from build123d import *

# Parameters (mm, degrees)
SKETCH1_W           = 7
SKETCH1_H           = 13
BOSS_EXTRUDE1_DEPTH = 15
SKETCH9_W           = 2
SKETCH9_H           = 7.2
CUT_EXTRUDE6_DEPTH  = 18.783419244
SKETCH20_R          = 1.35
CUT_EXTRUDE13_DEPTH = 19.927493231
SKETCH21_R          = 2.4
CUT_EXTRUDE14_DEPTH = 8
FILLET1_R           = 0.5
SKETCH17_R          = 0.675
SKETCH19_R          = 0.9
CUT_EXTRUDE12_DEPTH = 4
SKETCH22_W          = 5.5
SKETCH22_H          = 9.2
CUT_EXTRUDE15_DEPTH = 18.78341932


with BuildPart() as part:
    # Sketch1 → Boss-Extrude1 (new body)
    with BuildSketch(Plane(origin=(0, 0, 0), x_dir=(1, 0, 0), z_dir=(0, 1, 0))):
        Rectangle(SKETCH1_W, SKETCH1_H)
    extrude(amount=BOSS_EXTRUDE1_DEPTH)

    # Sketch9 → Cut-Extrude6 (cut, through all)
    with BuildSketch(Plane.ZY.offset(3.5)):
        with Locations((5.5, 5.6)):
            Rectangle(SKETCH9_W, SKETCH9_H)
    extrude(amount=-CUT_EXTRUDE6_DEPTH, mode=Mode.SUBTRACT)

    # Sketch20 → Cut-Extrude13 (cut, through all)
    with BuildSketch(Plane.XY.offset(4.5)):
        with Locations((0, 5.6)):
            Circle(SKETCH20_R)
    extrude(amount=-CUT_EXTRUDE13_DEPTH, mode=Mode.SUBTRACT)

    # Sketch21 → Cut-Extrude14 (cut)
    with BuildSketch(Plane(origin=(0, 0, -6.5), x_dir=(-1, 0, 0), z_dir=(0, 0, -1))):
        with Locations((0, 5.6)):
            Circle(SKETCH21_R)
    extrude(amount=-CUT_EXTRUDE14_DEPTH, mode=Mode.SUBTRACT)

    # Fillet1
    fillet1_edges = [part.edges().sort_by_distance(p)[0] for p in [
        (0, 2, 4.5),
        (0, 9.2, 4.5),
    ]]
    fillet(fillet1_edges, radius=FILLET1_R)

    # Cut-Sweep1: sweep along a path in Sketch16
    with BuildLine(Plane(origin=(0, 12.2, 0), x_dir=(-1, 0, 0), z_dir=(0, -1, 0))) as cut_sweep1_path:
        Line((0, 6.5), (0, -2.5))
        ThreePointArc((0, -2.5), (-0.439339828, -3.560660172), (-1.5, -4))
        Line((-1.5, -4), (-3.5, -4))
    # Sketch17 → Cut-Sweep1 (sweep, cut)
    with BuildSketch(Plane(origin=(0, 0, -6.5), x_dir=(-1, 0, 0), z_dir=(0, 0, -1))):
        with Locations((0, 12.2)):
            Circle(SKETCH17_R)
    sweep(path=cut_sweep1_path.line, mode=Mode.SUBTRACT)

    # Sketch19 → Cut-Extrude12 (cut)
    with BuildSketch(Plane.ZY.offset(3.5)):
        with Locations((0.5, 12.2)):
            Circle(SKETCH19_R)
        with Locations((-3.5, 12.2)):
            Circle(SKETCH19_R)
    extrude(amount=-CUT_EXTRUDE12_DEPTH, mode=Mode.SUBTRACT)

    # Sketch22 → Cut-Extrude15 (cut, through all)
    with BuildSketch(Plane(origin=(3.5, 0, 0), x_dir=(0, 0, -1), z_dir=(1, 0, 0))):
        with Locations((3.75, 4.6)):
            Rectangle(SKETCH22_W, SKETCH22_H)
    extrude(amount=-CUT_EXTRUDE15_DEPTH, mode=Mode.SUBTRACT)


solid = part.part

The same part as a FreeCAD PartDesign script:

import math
import FreeCAD as App
import Part
import Sketcher


def edges_at(feature, points):
    """Names of the edges that pass closest to the given points."""
    edges = feature.Shape.Edges
    near = lambda p: min(range(len(edges)), key=lambda i: edges[i].distToShape(Part.Vertex(*p))[0])
    return sorted({f"Edge{near(p) + 1}" for p in points})

doc = App.newDocument("Part")
body = doc.addObject("PartDesign::Body", "Body")

# Sketch on XZ plane
sketch1 = doc.addObject("Sketcher::SketchObject", "Sketch")
body.addObject(sketch1)
sketch1.AttachmentSupport = (doc.XZ_Plane, [""])
sketch1.MapMode = "FlatFace"
sketch1.addGeometry(Part.LineSegment(App.Vector(-4, -6, 0), App.Vector(-4, 6, 0)), False)
sketch1.addGeometry(Part.LineSegment(App.Vector(-4, 6, 0), App.Vector(4, 6, 0)), False)
sketch1.addGeometry(Part.LineSegment(App.Vector(4, 6, 0), App.Vector(4, -6, 0)), False)
sketch1.addGeometry(Part.LineSegment(App.Vector(4, -6, 0), App.Vector(-4, -6, 0)), False)
sketch1.addConstraint(Sketcher.Constraint("Coincident", 0, 2, 1, 1))
sketch1.addConstraint(Sketcher.Constraint("Coincident", 1, 2, 2, 1))
sketch1.addConstraint(Sketcher.Constraint("Coincident", 2, 2, 3, 1))
sketch1.addConstraint(Sketcher.Constraint("Coincident", 3, 2, 0, 1))
sketch1.addConstraint(Sketcher.Constraint("Vertical", 0))
sketch1.addConstraint(Sketcher.Constraint("Horizontal", 1))
sketch1.addConstraint(Sketcher.Constraint("Vertical", 2))
sketch1.addConstraint(Sketcher.Constraint("Horizontal", 3))
sketch1.addConstraint(Sketcher.Constraint("Symmetric", 0, 2, 2, 2, -1, 1))
sketch1.addConstraint(Sketcher.Constraint("DistanceX", 1, 1, 1, 2, 7.0))
sketch1.addConstraint(Sketcher.Constraint("DistanceY", 0, 1, 0, 2, 13.0))
pad1 = doc.addObject("PartDesign::Pad", "Pad")
body.addObject(pad1)
pad1.Profile = sketch1
pad1.Length = 15
pad1.Reversed = True

# Sketch on YZ plane
sketch2 = doc.addObject("Sketcher::SketchObject", "Sketch001")
body.addObject(sketch2)
sketch2.AttachmentSupport = (doc.YZ_Plane, [""])
sketch2.MapMode = "FlatFace"
sketch2.AttachmentOffset = App.Placement(App.Vector(0, 0, -3.5), App.Rotation())
sketch2.addGeometry(Part.LineSegment(App.Vector(9.2, 4.5, 0), App.Vector(2, 4.5, 0)), False)
sketch2.addGeometry(Part.LineSegment(App.Vector(2, 4.5, 0), App.Vector(2, 6.5, 0)), False)
sketch2.addGeometry(Part.LineSegment(App.Vector(2, 6.5, 0), App.Vector(9.2, 6.5, 0)), False)
sketch2.addGeometry(Part.LineSegment(App.Vector(9.2, 6.5, 0), App.Vector(9.2, 4.5, 0)), False)
sketch2.addConstraint(Sketcher.Constraint("Coincident", 0, 2, 1, 1))
sketch2.addConstraint(Sketcher.Constraint("Coincident", 1, 2, 2, 1))
sketch2.addConstraint(Sketcher.Constraint("Coincident", 2, 2, 3, 1))
sketch2.addConstraint(Sketcher.Constraint("Coincident", 3, 2, 0, 1))
sketch2.addConstraint(Sketcher.Constraint("Horizontal", 0))
sketch2.addConstraint(Sketcher.Constraint("Vertical", 1))
sketch2.addConstraint(Sketcher.Constraint("Horizontal", 2))
sketch2.addConstraint(Sketcher.Constraint("Vertical", 3))
sketch2.addConstraint(Sketcher.Constraint("DistanceY", 1, 1, 1, 2, 2.0))
sketch2.addConstraint(Sketcher.Constraint("DistanceX", 0, 2, 0, 1, 7.2))
sketch2.addConstraint(Sketcher.Constraint("DistanceX", -1, 1, 0, 2, 2.0))
sketch2.addConstraint(Sketcher.Constraint("DistanceY", -1, 1, 0, 2, 4.5))
pocket1 = doc.addObject("PartDesign::Pocket", "Pocket")
body.addObject(pocket1)
pocket1.Profile = sketch2
pocket1.Type = "ThroughAll"
pocket1.Reversed = True

# Sketch on XY plane
sketch3 = doc.addObject("Sketcher::SketchObject", "Sketch002")
body.addObject(sketch3)
sketch3.AttachmentSupport = (doc.XY_Plane, [""])
sketch3.MapMode = "FlatFace"
sketch3.AttachmentOffset = App.Placement(App.Vector(0, 0, 4.5), App.Rotation())
sketch3.addGeometry(Part.Circle(App.Vector(0, 5.6, 0), App.Vector(0, 0, 1), 1.4), False)
sketch3.addConstraint(Sketcher.Constraint("PointOnObject", 0, 3, -2))
sketch3.addConstraint(Sketcher.Constraint("Diameter", 0, 2.7))
sketch3.addConstraint(Sketcher.Constraint("DistanceY", -1, 1, 0, 3, 5.6))
pocket2 = doc.addObject("PartDesign::Pocket", "Pocket001")
body.addObject(pocket2)
pocket2.Profile = sketch3
pocket2.Type = "ThroughAll"

# Sketch on XY plane
sketch4 = doc.addObject("Sketcher::SketchObject", "Sketch003")
body.addObject(sketch4)
sketch4.AttachmentSupport = (doc.XY_Plane, [""])
sketch4.MapMode = "FlatFace"
sketch4.AttachmentOffset = App.Placement(App.Vector(0, 0, -6.5), App.Rotation())
sketch4.addGeometry(Part.Circle(App.Vector(0, 5.6, 0), App.Vector(0, 0, 1), 2.4), False)
sketch4.addConstraint(Sketcher.Constraint("PointOnObject", 0, 3, -2))
sketch4.addConstraint(Sketcher.Constraint("Diameter", 0, 4.8))
sketch4.addConstraint(Sketcher.Constraint("DistanceY", -1, 1, 0, 3, 5.6))
pocket3 = doc.addObject("PartDesign::Pocket", "Pocket002")
body.addObject(pocket3)
pocket3.Profile = sketch4
pocket3.Length = 8
pocket3.Reversed = True
doc.recompute()

fillet = doc.addObject("PartDesign::Fillet", "Fillet")
body.addObject(fillet)
fillet.Base = (pocket3, edges_at(pocket3, [(0, 2, 4.5), (0, 9.2, 4.5)]))
fillet.Radius = 0.5

# Sketch on XY plane
sketch5 = doc.addObject("Sketcher::SketchObject", "Sketch004")
body.addObject(sketch5)
sketch5.AttachmentSupport = (doc.XY_Plane, [""])
sketch5.MapMode = "FlatFace"
sketch5.AttachmentOffset = App.Placement(App.Vector(0, 0, -6.5), App.Rotation())
sketch5.addGeometry(Part.Circle(App.Vector(0, 12.2, 0), App.Vector(0, 0, 1), 0.7), False)
sketch5.addConstraint(Sketcher.Constraint("PointOnObject", 0, 3, -2))
sketch5.addConstraint(Sketcher.Constraint("Diameter", 0, 1.35))
sketch5.addConstraint(Sketcher.Constraint("DistanceY", -1, 1, 0, 3, 12.2))

# Sketch on XZ plane
sketch6 = doc.addObject("Sketcher::SketchObject", "Sketch005")
body.addObject(sketch6)
sketch6.AttachmentSupport = (doc.XZ_Plane, [""])
sketch6.MapMode = "FlatFace"
sketch6.AttachmentOffset = App.Placement(App.Vector(0, 0, -12.2), App.Rotation())
sketch6.addGeometry(Part.LineSegment(App.Vector(0, -6.5, 0), App.Vector(0, 2.5, 0)), False)
sketch6.addGeometry(Part.ArcOfCircle(Part.Circle(App.Vector(1.5, 2.5, 0), App.Vector(0, 0, 1), 1.5), math.radians(90), math.radians(180)), False)
sketch6.addGeometry(Part.LineSegment(App.Vector(1.5, 4, 0), App.Vector(3.5, 4, 0)), False)
sketch6.addConstraint(Sketcher.Constraint("Tangent", 0, 2, 1, 2))
sketch6.addConstraint(Sketcher.Constraint("Tangent", 1, 1, 2, 1))
sketch6.addConstraint(Sketcher.Constraint("Vertical", 0))
sketch6.addConstraint(Sketcher.Constraint("Horizontal", 2))
sketch6.addConstraint(Sketcher.Constraint("PointOnObject", 0, 1, -2))
sketch6.addConstraint(Sketcher.Constraint("Radius", 1, 1.5))
sketch6.addConstraint(Sketcher.Constraint("DistanceX", 2, 1, 2, 2, 2.0))
sketch6.addConstraint(Sketcher.Constraint("DistanceY", 0, 1, 0, 2, 9.0))
sketch6.addConstraint(Sketcher.Constraint("DistanceY", -1, 1, 1, 1, 4.0))
doc.recompute()

subtractivepipe = doc.addObject("PartDesign::SubtractivePipe", "SubtractivePipe")
body.addObject(subtractivepipe)
subtractivepipe.Profile = sketch5
subtractivepipe.Spine = (sketch6, ["Edge1", "Edge2", "Edge3"])

# Sketch on YZ plane
sketch7 = doc.addObject("Sketcher::SketchObject", "Sketch006")
body.addObject(sketch7)
sketch7.AttachmentSupport = (doc.YZ_Plane, [""])
sketch7.MapMode = "FlatFace"
sketch7.AttachmentOffset = App.Placement(App.Vector(0, 0, -3.5), App.Rotation())
sketch7.addGeometry(Part.Circle(App.Vector(12.2, 0.5, 0), App.Vector(0, 0, 1), 0.9), False)
sketch7.addGeometry(Part.Circle(App.Vector(12.2, -3.5, 0), App.Vector(0, 0, 1), 0.9), False)
sketch7.addConstraint(Sketcher.Constraint("Equal", 0, 1))
sketch7.addConstraint(Sketcher.Constraint("Vertical", 0, 3, 1, 3))
sketch7.addConstraint(Sketcher.Constraint("Diameter", 0, 1.8))
sketch7.addConstraint(Sketcher.Constraint("DistanceY", 1, 3, 0, 3, 4.0))
sketch7.addConstraint(Sketcher.Constraint("DistanceX", -1, 1, 0, 3, 12.2))
sketch7.addConstraint(Sketcher.Constraint("DistanceY", -1, 1, 0, 3, 0.5))
pocket4 = doc.addObject("PartDesign::Pocket", "Pocket003")
body.addObject(pocket4)
pocket4.Profile = sketch7
pocket4.Length = 4
pocket4.Reversed = True

# Sketch on YZ plane
sketch8 = doc.addObject("Sketcher::SketchObject", "Sketch007")
body.addObject(sketch8)
sketch8.AttachmentSupport = (doc.YZ_Plane, [""])
sketch8.MapMode = "FlatFace"
sketch8.AttachmentOffset = App.Placement(App.Vector(0, 0, 3.5), App.Rotation())
sketch8.addGeometry(Part.LineSegment(App.Vector(9, -1, 0), App.Vector(0, -1, 0)), False)
sketch8.addGeometry(Part.LineSegment(App.Vector(0, -1, 0), App.Vector(0, -6, 0)), False)
sketch8.addGeometry(Part.LineSegment(App.Vector(0, -6, 0), App.Vector(9, -6, 0)), False)
sketch8.addGeometry(Part.LineSegment(App.Vector(9, -6, 0), App.Vector(9, -1, 0)), False)
sketch8.addConstraint(Sketcher.Constraint("Coincident", 0, 2, 1, 1))
sketch8.addConstraint(Sketcher.Constraint("Coincident", 1, 2, 2, 1))
sketch8.addConstraint(Sketcher.Constraint("Coincident", 2, 2, 3, 1))
sketch8.addConstraint(Sketcher.Constraint("Coincident", 3, 2, 0, 1))
sketch8.addConstraint(Sketcher.Constraint("Horizontal", 0))
sketch8.addConstraint(Sketcher.Constraint("Vertical", 1))
sketch8.addConstraint(Sketcher.Constraint("Horizontal", 2))
sketch8.addConstraint(Sketcher.Constraint("Vertical", 3))
sketch8.addConstraint(Sketcher.Constraint("PointOnObject", 0, 2, -2))
sketch8.addConstraint(Sketcher.Constraint("DistanceX", 0, 2, 0, 1, 9.2))
sketch8.addConstraint(Sketcher.Constraint("DistanceY", 1, 2, 1, 1, 5.5))
sketch8.addConstraint(Sketcher.Constraint("DistanceY", 0, 2, -1, 1, 1.0))
pocket5 = doc.addObject("PartDesign::Pocket", "Pocket004")
body.addObject(pocket5)
pocket5.Profile = sketch8
pocket5.Type = "ThroughAll"

doc.recompute()
